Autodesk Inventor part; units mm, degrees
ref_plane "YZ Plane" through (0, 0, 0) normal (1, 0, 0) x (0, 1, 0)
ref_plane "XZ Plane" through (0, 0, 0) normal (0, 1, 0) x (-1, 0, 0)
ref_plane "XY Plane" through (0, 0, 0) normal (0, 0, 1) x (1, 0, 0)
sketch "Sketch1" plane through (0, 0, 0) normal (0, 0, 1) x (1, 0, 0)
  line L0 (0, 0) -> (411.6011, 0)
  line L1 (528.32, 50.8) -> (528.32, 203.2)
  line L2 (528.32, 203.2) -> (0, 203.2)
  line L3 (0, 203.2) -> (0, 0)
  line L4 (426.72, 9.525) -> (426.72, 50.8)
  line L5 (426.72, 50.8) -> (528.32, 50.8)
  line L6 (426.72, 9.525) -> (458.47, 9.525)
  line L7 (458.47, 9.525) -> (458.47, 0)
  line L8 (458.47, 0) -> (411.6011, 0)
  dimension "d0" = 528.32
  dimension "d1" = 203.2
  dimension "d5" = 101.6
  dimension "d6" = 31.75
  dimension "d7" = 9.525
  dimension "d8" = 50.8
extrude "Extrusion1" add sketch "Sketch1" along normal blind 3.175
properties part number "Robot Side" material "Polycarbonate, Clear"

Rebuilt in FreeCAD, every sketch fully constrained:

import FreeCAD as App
import Part
import Sketcher
from FreeCAD import Vector
Q = App.Units.Quantity


def add_polygon(sketch, points):
    """Adds a closed chain of lines whose ends are joined by coincident constraints."""
    first, n = sketch.GeometryCount, len(points)
    for a, b in zip(points, points[1:] + points[:1]):
        sketch.addGeometry(Part.LineSegment(App.Vector(*a, 0), App.Vector(*b, 0)), False)
    for i in range(n):
        sketch.addConstraint(Sketcher.Constraint("Coincident", first + i, 2, first + (i + 1) % n, 1))

doc = App.newDocument("Part")
body = doc.addObject("PartDesign::Body", "Body")

# Sketch on XY plane
sketch1 = doc.addObject("Sketcher::SketchObject", "Sketch")
body.addObject(sketch1)
sketch1.AttachmentSupport = (doc.XY_Plane, [""])
sketch1.MapMode = "FlatFace"
add_polygon(sketch1, [(0, 203), (0, 0), (458, 0), (458, 10), (427, 10), (427, 51), (528, 51), (528, 203)])  # lines 0-7
sketch1.addConstraint(Sketcher.Constraint("Vertical", 0))
sketch1.addConstraint(Sketcher.Constraint("Horizontal", 1))
sketch1.addConstraint(Sketcher.Constraint("Vertical", 2))
sketch1.addConstraint(Sketcher.Constraint("Horizontal", 3))
sketch1.addConstraint(Sketcher.Constraint("Vertical", 4))
sketch1.addConstraint(Sketcher.Constraint("Horizontal", 5))
sketch1.addConstraint(Sketcher.Constraint("Vertical", 6))
sketch1.addConstraint(Sketcher.Constraint("Horizontal", 7))
sketch1.addConstraint(Sketcher.Constraint("Coincident", 0, 2, -1, 1))
sketch1.addConstraint(Sketcher.Constraint("DistanceX", 5, 1, 5, 2, Q("4 in")))
sketch1.addConstraint(Sketcher.Constraint("DistanceY", 0, 2, 0, 1, Q("8 in")))
sketch1.addConstraint(Sketcher.Constraint("DistanceX", 7, 2, 7, 1, Q("20.8 in")))
sketch1.addConstraint(Sketcher.Constraint("DistanceY", -1, 1, 4, 2, Q("2 in")))
sketch1.addConstraint(Sketcher.Constraint("DistanceX", 3, 2, 3, 1, Q("1.25 in")))
sketch1.addConstraint(Sketcher.Constraint("DistanceY", 2, 1, 2, 2, Q("0.375 in")))
pad1 = doc.addObject("PartDesign::Pad", "Pad")
body.addObject(pad1)
pad1.Profile = sketch1
pad1.Length = Q("0.125 in")

doc.recompute()
